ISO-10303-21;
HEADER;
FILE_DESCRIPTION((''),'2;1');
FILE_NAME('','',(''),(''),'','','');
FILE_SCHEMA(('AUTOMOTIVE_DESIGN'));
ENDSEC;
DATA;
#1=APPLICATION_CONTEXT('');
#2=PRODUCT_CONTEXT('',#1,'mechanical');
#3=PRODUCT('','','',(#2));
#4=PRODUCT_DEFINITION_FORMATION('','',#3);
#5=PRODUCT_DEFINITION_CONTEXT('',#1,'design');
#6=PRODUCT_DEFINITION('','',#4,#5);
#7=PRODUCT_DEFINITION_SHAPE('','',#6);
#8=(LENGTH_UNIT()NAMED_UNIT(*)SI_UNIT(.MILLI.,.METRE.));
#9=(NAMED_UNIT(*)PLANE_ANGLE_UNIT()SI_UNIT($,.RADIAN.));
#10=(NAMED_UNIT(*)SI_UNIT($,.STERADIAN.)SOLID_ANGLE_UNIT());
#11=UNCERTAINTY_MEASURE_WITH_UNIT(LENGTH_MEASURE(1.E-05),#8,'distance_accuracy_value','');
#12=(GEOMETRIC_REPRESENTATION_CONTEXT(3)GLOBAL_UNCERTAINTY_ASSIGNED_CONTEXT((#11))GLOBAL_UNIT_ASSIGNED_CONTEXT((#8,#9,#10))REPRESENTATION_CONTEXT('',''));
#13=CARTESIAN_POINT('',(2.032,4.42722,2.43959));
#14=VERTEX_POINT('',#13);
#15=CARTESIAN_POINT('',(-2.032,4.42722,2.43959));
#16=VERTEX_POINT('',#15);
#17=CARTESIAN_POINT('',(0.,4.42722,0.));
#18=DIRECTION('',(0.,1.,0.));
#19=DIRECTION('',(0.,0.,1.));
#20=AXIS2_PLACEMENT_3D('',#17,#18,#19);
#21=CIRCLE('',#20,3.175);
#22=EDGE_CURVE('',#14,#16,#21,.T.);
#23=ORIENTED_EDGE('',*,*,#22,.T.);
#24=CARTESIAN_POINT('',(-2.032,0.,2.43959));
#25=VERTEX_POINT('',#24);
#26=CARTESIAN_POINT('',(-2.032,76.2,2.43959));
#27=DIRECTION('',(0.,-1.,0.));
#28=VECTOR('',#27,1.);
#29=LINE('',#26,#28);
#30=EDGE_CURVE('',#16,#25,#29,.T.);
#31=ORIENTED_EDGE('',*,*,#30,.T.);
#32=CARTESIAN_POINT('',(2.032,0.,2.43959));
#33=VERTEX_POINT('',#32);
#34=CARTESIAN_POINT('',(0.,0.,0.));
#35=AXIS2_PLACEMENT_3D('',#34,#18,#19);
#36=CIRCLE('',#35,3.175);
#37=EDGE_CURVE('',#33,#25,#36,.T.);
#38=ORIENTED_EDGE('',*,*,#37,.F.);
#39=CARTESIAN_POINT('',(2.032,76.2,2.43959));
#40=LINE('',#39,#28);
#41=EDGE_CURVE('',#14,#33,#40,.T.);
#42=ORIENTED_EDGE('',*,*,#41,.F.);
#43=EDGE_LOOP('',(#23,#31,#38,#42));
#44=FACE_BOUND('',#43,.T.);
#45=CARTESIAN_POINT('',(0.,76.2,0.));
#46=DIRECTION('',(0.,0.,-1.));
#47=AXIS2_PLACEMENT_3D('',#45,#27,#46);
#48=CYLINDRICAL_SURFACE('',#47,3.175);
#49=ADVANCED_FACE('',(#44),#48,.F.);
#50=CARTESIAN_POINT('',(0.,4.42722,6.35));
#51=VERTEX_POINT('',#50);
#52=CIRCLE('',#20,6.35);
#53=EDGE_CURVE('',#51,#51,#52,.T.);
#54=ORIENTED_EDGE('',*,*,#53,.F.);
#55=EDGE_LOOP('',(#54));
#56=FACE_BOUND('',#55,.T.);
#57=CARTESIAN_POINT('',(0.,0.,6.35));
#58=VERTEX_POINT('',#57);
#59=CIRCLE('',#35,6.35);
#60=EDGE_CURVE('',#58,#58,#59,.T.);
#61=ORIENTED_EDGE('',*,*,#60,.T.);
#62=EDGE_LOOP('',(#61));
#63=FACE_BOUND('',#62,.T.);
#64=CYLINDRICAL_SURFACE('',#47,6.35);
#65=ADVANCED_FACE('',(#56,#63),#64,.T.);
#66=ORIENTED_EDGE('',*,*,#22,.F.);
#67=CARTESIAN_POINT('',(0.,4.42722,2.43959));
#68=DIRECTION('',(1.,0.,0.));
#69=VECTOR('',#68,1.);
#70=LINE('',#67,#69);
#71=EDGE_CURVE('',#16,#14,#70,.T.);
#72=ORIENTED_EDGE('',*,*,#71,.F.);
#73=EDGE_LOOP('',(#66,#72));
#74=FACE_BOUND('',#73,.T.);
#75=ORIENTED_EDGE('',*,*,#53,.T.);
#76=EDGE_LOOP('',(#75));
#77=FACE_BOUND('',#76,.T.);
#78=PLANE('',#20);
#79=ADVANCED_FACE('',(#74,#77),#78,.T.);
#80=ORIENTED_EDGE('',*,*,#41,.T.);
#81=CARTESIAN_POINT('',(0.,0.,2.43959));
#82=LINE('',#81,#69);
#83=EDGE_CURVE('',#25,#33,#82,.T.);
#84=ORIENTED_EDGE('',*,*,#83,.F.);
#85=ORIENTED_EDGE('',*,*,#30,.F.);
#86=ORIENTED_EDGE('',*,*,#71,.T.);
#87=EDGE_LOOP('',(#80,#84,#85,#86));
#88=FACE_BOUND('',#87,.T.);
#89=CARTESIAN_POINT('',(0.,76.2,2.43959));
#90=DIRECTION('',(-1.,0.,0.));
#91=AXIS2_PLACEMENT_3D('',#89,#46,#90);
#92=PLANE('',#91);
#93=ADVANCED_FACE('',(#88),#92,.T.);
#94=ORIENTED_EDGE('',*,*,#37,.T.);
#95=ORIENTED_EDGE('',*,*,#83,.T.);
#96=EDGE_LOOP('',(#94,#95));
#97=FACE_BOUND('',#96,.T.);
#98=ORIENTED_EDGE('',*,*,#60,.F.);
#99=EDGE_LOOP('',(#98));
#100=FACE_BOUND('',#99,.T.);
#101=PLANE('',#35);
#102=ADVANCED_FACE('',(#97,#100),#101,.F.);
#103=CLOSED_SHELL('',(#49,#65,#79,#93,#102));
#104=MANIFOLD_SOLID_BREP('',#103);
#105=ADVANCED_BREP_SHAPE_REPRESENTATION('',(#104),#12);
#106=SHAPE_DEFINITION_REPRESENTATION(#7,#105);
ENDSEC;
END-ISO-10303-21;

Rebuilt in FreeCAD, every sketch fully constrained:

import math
import FreeCAD as App
import Part
import Sketcher

V = App.Vector
Q = App.Units.Quantity

doc = App.newDocument("Part")
params = doc.addObject("Spreadsheet::Sheet", "Params")
for row, (alias, value) in enumerate([
    ("sketch1_diameter", "0.5 in"),
    ("sketch1_radius", "0.125 in"),
    ("sketch1_width", "0.16 in"),
    ("pad1_length", "3 in"),
    ("sketch2_diameter", "0.5 in"),
    ("pocket1_length", "2.8257 in"),
], start=1):
    params.set(f"A{row}", alias)
    params.set(f"B{row}", "=" + value)
    params.setAlias(f"B{row}", alias)

body = doc.addObject("PartDesign::Body", "Body")

sketch1 = doc.addObject("Sketcher::SketchObject", "Sketch")
body.addObject(sketch1)
sketch1.AttachmentSupport = (doc.XZ_Plane, [""])
sketch1.MapMode = "FlatFace"
sketch1.addGeometry([
    Part.Circle(V(0, 0, 0), V(0, 0, 1), 6.3),
    Part.ArcOfCircle(Part.Circle(V(0, 0, 0), V(0, 0, 1), 3.2), math.radians(130), math.radians(410)),
    Part.LineSegment(V(2, 2.4, 0), V(-2, 2.4, 0)),
], False)
sketch1.addConstraint([
    Sketcher.Constraint("Coincident", 1, 1, 2, 2),
    Sketcher.Constraint("Coincident", 2, 1, 1, 2),
    Sketcher.Constraint("Horizontal", 2),
    Sketcher.Constraint("Coincident", 0, 3, -1, 1),
    Sketcher.Constraint("Coincident", 1, 3, -1, 1),
    Sketcher.Constraint("Diameter", 0, Q("0.5 in")),
    Sketcher.Constraint("Radius", 1, Q("0.125 in")),
    Sketcher.Constraint("DistanceX", 2, 2, 2, 1, Q("0.16 in")),
])
sketch1.setExpression("Constraints[5]", "Params.sketch1_diameter")
sketch1.setExpression("Constraints[6]", "Params.sketch1_radius")
sketch1.setExpression("Constraints[7]", "Params.sketch1_width")
pad1 = doc.addObject("PartDesign::Pad", "Pad")
body.addObject(pad1)
pad1.Profile = sketch1
pad1.setExpression("Length", "Params.pad1_length")
pad1.Reversed = True

sketch2 = doc.addObject("Sketcher::SketchObject", "Sketch001")
body.addObject(sketch2)
sketch2.AttachmentSupport = (doc.XZ_Plane, [""])
sketch2.MapMode = "FlatFace"
sketch2.AttachmentOffset = App.Placement(V(0, 0, -3 * 25.4), App.Rotation())
sketch2.addGeometry(Part.Circle(V(0, 0, 0), V(0, 0, 1), 6), False)
sketch2.addConstraint([
    Sketcher.Constraint("Coincident", 0, 3, -1, 1),
    Sketcher.Constraint("Diameter", 0, Q("0.5 in")),
])
sketch2.setExpression("Constraints[1]", "Params.sketch2_diameter")
pocket1 = doc.addObject("PartDesign::Pocket", "Pocket")
body.addObject(pocket1)
pocket1.Profile = sketch2
pocket1.setExpression("Length", "Params.pocket1_length")
pocket1.Reversed = True

doc.recompute()
